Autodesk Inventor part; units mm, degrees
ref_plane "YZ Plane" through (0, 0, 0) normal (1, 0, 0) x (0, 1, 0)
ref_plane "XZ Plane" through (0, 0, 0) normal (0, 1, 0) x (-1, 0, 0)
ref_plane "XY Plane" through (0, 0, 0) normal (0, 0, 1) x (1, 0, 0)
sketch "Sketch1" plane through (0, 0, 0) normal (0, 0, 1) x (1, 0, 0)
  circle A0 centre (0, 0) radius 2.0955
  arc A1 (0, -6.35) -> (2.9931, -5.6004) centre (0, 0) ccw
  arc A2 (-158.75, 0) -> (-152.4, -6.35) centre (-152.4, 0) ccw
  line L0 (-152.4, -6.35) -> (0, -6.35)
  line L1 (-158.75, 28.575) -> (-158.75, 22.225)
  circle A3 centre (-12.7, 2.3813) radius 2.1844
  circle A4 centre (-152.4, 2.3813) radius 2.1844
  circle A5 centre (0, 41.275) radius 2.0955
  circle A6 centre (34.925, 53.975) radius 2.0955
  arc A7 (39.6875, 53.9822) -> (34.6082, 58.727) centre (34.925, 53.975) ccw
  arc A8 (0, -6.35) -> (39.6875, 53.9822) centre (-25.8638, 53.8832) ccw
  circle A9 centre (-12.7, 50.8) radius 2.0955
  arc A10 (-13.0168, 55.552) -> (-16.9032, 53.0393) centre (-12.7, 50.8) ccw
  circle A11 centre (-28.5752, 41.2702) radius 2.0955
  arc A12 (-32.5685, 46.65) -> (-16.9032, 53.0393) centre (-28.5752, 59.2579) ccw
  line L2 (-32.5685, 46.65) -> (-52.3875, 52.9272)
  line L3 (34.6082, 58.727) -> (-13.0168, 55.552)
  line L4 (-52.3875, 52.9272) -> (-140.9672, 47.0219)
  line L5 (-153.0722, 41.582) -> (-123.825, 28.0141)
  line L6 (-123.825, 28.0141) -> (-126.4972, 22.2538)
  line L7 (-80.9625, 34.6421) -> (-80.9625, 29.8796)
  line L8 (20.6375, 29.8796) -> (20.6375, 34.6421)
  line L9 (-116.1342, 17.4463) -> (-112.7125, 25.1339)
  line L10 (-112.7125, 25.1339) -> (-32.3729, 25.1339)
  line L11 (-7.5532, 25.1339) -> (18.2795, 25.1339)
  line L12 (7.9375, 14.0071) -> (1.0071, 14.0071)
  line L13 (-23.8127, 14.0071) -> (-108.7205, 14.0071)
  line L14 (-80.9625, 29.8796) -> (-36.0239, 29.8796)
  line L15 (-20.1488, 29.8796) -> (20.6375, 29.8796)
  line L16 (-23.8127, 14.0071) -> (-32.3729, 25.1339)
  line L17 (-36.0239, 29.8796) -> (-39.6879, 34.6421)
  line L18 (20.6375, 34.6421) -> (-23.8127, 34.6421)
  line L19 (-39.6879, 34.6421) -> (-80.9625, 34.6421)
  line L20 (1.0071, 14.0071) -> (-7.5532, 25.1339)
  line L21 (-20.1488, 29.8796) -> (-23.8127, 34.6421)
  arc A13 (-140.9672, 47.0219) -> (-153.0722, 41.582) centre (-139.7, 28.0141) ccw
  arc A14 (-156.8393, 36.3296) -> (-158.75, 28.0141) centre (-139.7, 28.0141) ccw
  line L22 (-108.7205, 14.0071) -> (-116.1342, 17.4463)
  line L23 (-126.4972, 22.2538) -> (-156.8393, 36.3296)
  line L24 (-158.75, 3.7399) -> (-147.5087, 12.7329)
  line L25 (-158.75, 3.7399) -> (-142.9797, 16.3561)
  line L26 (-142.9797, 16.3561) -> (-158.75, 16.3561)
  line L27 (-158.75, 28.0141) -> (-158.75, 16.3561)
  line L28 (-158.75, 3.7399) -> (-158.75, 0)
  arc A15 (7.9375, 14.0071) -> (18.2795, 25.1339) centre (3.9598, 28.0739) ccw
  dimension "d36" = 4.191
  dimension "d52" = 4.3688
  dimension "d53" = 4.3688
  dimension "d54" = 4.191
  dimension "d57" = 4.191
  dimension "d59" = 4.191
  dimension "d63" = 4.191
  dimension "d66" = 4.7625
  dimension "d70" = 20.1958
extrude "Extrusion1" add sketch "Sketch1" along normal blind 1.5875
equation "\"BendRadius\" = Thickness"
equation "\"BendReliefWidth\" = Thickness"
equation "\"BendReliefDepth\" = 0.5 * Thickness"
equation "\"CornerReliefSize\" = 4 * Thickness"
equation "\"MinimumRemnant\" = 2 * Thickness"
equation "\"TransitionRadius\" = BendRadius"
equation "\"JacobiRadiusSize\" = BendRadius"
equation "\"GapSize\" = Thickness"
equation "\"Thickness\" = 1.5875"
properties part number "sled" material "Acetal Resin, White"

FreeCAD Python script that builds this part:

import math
import FreeCAD as App
import Part
import Sketcher

V = App.Vector
Q = App.Units.Quantity

doc = App.newDocument("Part")
params = doc.addObject("Spreadsheet::Sheet", "Params")
for row, (alias, value) in enumerate([
    ("sketch1_diameter", "0.172 in"),
    ("sketch1_diameter2", "0.165 in"),
    ("sketch1_radius", "0.1875 in"),
    ("sketch1_width", "6 in"),
    ("sketch1_height", "0.1875 in"),
    ("pad1_length", "0.0625 in"),
], start=1):
    params.set(f"A{row}", alias)
    params.set(f"B{row}", "=" + value)
    params.setAlias(f"B{row}", alias)

body = doc.addObject("PartDesign::Body", "Body")

# Sketch on XY plane
sketch1 = body.newObject("Sketcher::SketchObject", "Sketch")
sketch1.AttachmentSupport = (doc.getObject("XY_Plane"), [""])
sketch1.MapMode = "FlatFace"
sketch1.addGeometry([
    Part.LineSegment(V(-158.8, 3.7, 0), V(-158.8, 0, 0)),  # 0
    Part.ArcOfCircle(Part.Circle(V(-152.4, 0, 0), V(0, 0, 1), 6.3), math.radians(180), math.radians(270)),  # 1
    Part.LineSegment(V(-152.4, -6.3, 0), V(0, -6.3, 0)),  # 2
    Part.ArcOfCircle(Part.Circle(V(-25.9, 53.9, 0), V(0, 0, 1), 65.6), math.radians(-67), math.radians(0)),  # 3
    Part.ArcOfCircle(Part.Circle(V(34.9, 54, 0), V(0, 0, 1), 4.8), math.radians(0), math.radians(94)),  # 4
    Part.LineSegment(V(34.6, 58.7, 0), V(-13, 55.6, 0)),  # 5
    Part.ArcOfCircle(Part.Circle(V(-12.7, 50.8, 0), V(0, 0, 1), 4.8), math.radians(94), math.radians(152)),  # 6
    Part.ArcOfCircle(Part.Circle(V(-28.6, 59.3, 0), V(0, 0, 1), 13.2), math.radians(-108), math.radians(-28)),  # 7
    Part.LineSegment(V(-32.6, 46.6, 0), V(-52.4, 52.9, 0)),  # 8
    Part.LineSegment(V(-52.4, 52.9, 0), V(-141, 47, 0)),  # 9
    Part.ArcOfCircle(Part.Circle(V(-139.7, 28, 0), V(0, 0, 1), 19.1), math.radians(94), math.radians(135)),  # 10
    Part.LineSegment(V(-153.1, 41.6, 0), V(-123.8, 28, 0)),  # 11
    Part.LineSegment(V(-123.8, 28, 0), V(-126.5, 22.3, 0)),  # 12
    Part.LineSegment(V(-126.5, 22.3, 0), V(-156.8, 36.3, 0)),  # 13
    Part.ArcOfCircle(Part.Circle(V(-139.7, 28, 0), V(0, 0, 1), 19), math.radians(154), math.radians(180)),  # 14
    Part.LineSegment(V(-158.8, 28, 0), V(-158.8, 16.4, 0)),  # 15
    Part.LineSegment(V(-158.8, 16.4, 0), V(-143, 16.4, 0)),  # 16
    Part.LineSegment(V(-143, 16.4, 0), V(-147.5, 12.7, 0)),  # 17
    Part.LineSegment(V(-147.5, 12.7, 0), V(-158.8, 3.7, 0)),  # 18
    Part.Circle(V(-152.4, 2.4, 0), V(0, 0, 1), 2.2),  # 19
    Part.LineSegment(V(-108.7, 14, 0), V(-116.1, 17.4, 0)),  # 20
    Part.LineSegment(V(-116.1, 17.4, 0), V(-112.7, 25.1, 0)),  # 21
    Part.LineSegment(V(-112.7, 25.1, 0), V(-32.4, 25.1, 0)),  # 22
    Part.LineSegment(V(-32.4, 25.1, 0), V(-23.8, 14, 0)),  # 23
    Part.LineSegment(V(-23.8, 14, 0), V(-108.7, 14, 0)),  # 24
    Part.Circle(V(-12.7, 2.4, 0), V(0, 0, 1), 2.2),  # 25
    Part.Circle(V(0, 0, 0), V(0, 0, 1), 2.1),  # 26
    Part.LineSegment(V(1, 14, 0), V(-7.6, 25.1, 0)),  # 27
    Part.LineSegment(V(-7.6, 25.1, 0), V(18.3, 25.1, 0)),  # 28
    Part.ArcOfCircle(Part.Circle(V(4, 28.1, 0), V(0, 0, 1), 14.6), math.radians(-74), math.radians(-12)),  # 29
    Part.LineSegment(V(7.9, 14, 0), V(1, 14, 0)),  # 30
    Part.LineSegment(V(-81, 29.9, 0), V(-81, 34.6, 0)),  # 31
    Part.LineSegment(V(-81, 34.6, 0), V(-39.7, 34.6, 0)),  # 32
    Part.LineSegment(V(-39.7, 34.6, 0), V(-36, 29.9, 0)),  # 33
    Part.LineSegment(V(-36, 29.9, 0), V(-81, 29.9, 0)),  # 34
    Part.Circle(V(-28.6, 41.3, 0), V(0, 0, 1), 2.1),  # 35
    Part.LineSegment(V(20.6, 34.6, 0), V(20.6, 29.9, 0)),  # 36
    Part.LineSegment(V(20.6, 29.9, 0), V(-20.1, 29.9, 0)),  # 37
    Part.LineSegment(V(-20.1, 29.9, 0), V(-23.8, 34.6, 0)),  # 38
    Part.LineSegment(V(-23.8, 34.6, 0), V(20.6, 34.6, 0)),  # 39
    Part.Circle(V(0, 41.3, 0), V(0, 0, 1), 2.1),  # 40
    Part.Circle(V(-12.7, 50.8, 0), V(0, 0, 1), 2.1),  # 41
    Part.Circle(V(34.9, 54, 0), V(0, 0, 1), 2.1),  # 42
], False)
sketch1.addConstraint([
    Sketcher.Constraint("Tangent", 0, 2, 1, 1),
    Sketcher.Constraint("Tangent", 1, 2, 2, 1),
    Sketcher.Constraint("Coincident", 2, 2, 3, 1),
    Sketcher.Constraint("Tangent", 3, 2, 4, 1),
    Sketcher.Constraint("Tangent", 4, 2, 5, 1),
    Sketcher.Constraint("Tangent", 5, 2, 6, 1),
    Sketcher.Constraint("Tangent", 6, 2, 7, 2),
    Sketcher.Constraint("Tangent", 7, 1, 8, 1),
    Sketcher.Constraint("Coincident", 8, 2, 9, 1),
    Sketcher.Constraint("Tangent", 9, 2, 10, 1),
    Sketcher.Constraint("Coincident", 10, 2, 11, 1),
    Sketcher.Constraint("Coincident", 11, 2, 12, 1),
    Sketcher.Constraint("Coincident", 12, 2, 13, 1),
    Sketcher.Constraint("Coincident", 13, 2, 14, 1),
    Sketcher.Constraint("Tangent", 14, 2, 15, 1),
    Sketcher.Constraint("Coincident", 15, 2, 16, 1),
    Sketcher.Constraint("Coincident", 16, 2, 17, 1),
    Sketcher.Constraint("Coincident", 17, 2, 18, 1),
    Sketcher.Constraint("Coincident", 18, 2, 0, 1),
    Sketcher.Constraint("Coincident", 20, 2, 21, 1),
    Sketcher.Constraint("Coincident", 21, 2, 22, 1),
    Sketcher.Constraint("Coincident", 22, 2, 23, 1),
    Sketcher.Constraint("Coincident", 23, 2, 24, 1),
    Sketcher.Constraint("Coincident", 24, 2, 20, 1),
    Sketcher.Constraint("Coincident", 27, 2, 28, 1),
    Sketcher.Constraint("Coincident", 28, 2, 29, 2),
    Sketcher.Constraint("Coincident", 29, 1, 30, 1),
    Sketcher.Constraint("Coincident", 30, 2, 27, 1),
    Sketcher.Constraint("Coincident", 31, 2, 32, 1),
    Sketcher.Constraint("Coincident", 32, 2, 33, 1),
    Sketcher.Constraint("Coincident", 33, 2, 34, 1),
    Sketcher.Constraint("Coincident", 34, 2, 31, 1),
    Sketcher.Constraint("Coincident", 36, 2, 37, 1),
    Sketcher.Constraint("Coincident", 37, 2, 38, 1),
    Sketcher.Constraint("Coincident", 38, 2, 39, 1),
    Sketcher.Constraint("Coincident", 39, 2, 36, 1),
    Sketcher.Constraint("Vertical", 0),
    Sketcher.Constraint("Horizontal", 2),
    Sketcher.Constraint("Vertical", 15),
    Sketcher.Constraint("Horizontal", 16),
    Sketcher.Constraint("Horizontal", 22),
    Sketcher.Constraint("Horizontal", 24),
    Sketcher.Constraint("Horizontal", 28),
    Sketcher.Constraint("Horizontal", 30),
    Sketcher.Constraint("Vertical", 31),
    Sketcher.Constraint("Horizontal", 32),
    Sketcher.Constraint("Horizontal", 34),
    Sketcher.Constraint("Vertical", 36),
    Sketcher.Constraint("Horizontal", 37),
    Sketcher.Constraint("Horizontal", 39),
    Sketcher.Constraint("Coincident", 26, 3, -1, 1),
    Sketcher.Constraint("Coincident", 14, 3, 10, 3),
    Sketcher.Constraint("Coincident", 41, 3, 6, 3),
    Sketcher.Constraint("Coincident", 42, 3, 4, 3),
    Sketcher.Constraint("Equal", 4, 6),
    Sketcher.Constraint("Equal", 10, 14),
    Sketcher.Constraint("Equal", 19, 25),
    Sketcher.Constraint("Equal", 26, 35),
    Sketcher.Constraint("Equal", 35, 40),
    Sketcher.Constraint("Equal", 40, 41),
    Sketcher.Constraint("Equal", 41, 42),
    Sketcher.Constraint("PointOnObject", 1, 3, -1),
    Sketcher.Constraint("PointOnObject", 40, 3, -2),
    Sketcher.Constraint("PointOnObject", 2, 2, -2),
    Sketcher.Constraint("Parallel", 5, 9),
    Sketcher.Constraint("Perpendicular", 11, 12),
    Sketcher.Constraint("Perpendicular", 12, 13),
    Sketcher.Constraint("Parallel", 17, 18),
    Sketcher.Constraint("Parallel", 13, 20),
    Sketcher.Constraint("Parallel", 23, 27),
    Sketcher.Constraint("Parallel", 27, 33),
    Sketcher.Constraint("Parallel", 33, 38),
    Sketcher.Constraint("Horizontal", 19, 3, 25, 3),
    Sketcher.Constraint("Horizontal", 14, 3, 11, 2),
    Sketcher.Constraint("Horizontal", 22, 2, 27, 2),
    Sketcher.Constraint("Horizontal", 24, 2, 29, 1),
    Sketcher.Constraint("Horizontal", 34, 2, 36, 2),
    Sketcher.Constraint("Horizontal", 32, 2, 38, 2),
    Sketcher.Constraint("Vertical", 1, 3, 19, 3),
    Sketcher.Constraint("Vertical", 6, 3, 25, 3),
    Sketcher.Constraint("Vertical", 7, 3, 35, 3),
    Sketcher.Constraint("Vertical", 0, 2, 14, 2),
    Sketcher.Constraint("Vertical", 23, 2, 38, 2),
    Sketcher.Constraint("Diameter", 19, Q("0.172 in")),
    Sketcher.Constraint("Diameter", 26, Q("0.165 in")),
    Sketcher.Constraint("Radius", 4, Q("0.1875 in")),
    Sketcher.Constraint("DistanceX", 2, 1, 2, 2, Q("6 in")),
    Sketcher.Constraint("DistanceY", 31, 1, 31, 2, Q("0.1875 in")),
    Sketcher.Constraint("Radius", 1, Q("0.25 in")),
    Sketcher.Constraint("Radius", 10, Q("0.75 in")),
    Sketcher.Constraint("DistanceY", -1, 1, 6, 3, Q("2 in")),
    Sketcher.Constraint("DistanceX", 10, 3, 6, 3, Q("5 in")),
    Sketcher.Constraint("DistanceX", 35, 3, 23, 2, Q("0.1875 in")),
    Sketcher.Constraint("DistanceX", 39, 1, 39, 2, Q("1.75 in")),
    Sketcher.Constraint("DistanceX", 7, 3, 4, 3, Q("2.5 in")),
    Sketcher.Constraint("DistanceY", 40, 3, 42, 3, Q("0.5 in")),
    Sketcher.Constraint("DistanceX", 29, 1, 36, 2, Q("0.5 in")),
    Sketcher.Constraint("Distance", 12, Q("0.25 in")),
    Sketcher.Constraint("Angle", 17, Q("-141.3403 deg")),
    Sketcher.Constraint("Radius", 3, Q("65.5513 mm")),
    Sketcher.Constraint("Radius", 7, Q("13.2252 mm")),
    Sketcher.Constraint("Radius", 29, Q("14.6184 mm")),
    Sketcher.Constraint("DistanceY", 29, 3, 3, 2, Q("1.02 in")),
    Sketcher.Constraint("DistanceX", 21, 2, 31, 2, Q("1.25 in")),
    Sketcher.Constraint("DistanceX", -1, 1, 4, 3, Q("1.375 in")),
    Sketcher.Constraint("DistanceY", -1, 1, 4, 3, Q("2.125 in")),
    Sketcher.Constraint("DistanceY", -1, 1, 19, 3, Q("0.093752 in")),
    Sketcher.Constraint("DistanceX", 8, 2, -1, 1, Q("2.0625 in")),
    Sketcher.Constraint("DistanceX", 11, 2, -1, 1, Q("4.875 in")),
    Sketcher.Constraint("DistanceX", 21, 2, -1, 1, Q("4.4375 in")),
    Sketcher.Constraint("DistanceX", 12, 2, 20, 2, Q("0.408 in")),
    Sketcher.Constraint("DistanceY", 20, 2, 31, 2, Q("0.677 in")),
    Sketcher.Constraint("DistanceX", 32, 2, 22, 2, Q("0.288 in")),
    Sketcher.Constraint("DistanceX", 32, 2, 35, 3, Q("0.4375 in")),
    Sketcher.Constraint("Distance", 23, Q("0.5527 in")),
    Sketcher.Constraint("DistanceX", 16, 1, 16, 2, Q("15.7703 mm")),
    Sketcher.Constraint("DistanceX", 24, 2, 24, 1, Q("84.9078 mm")),
    Sketcher.Constraint("DistanceX", 28, 1, 28, 2, Q("25.8327 mm")),
    Sketcher.Constraint("DistanceX", 30, 2, 30, 1, Q("6.9304 mm")),
    Sketcher.Constraint("DistanceY", 0, 2, 0, 1, Q("3.74 mm")),
    Sketcher.Constraint("DistanceY", 15, 2, 15, 1, Q("11.658 mm")),
    Sketcher.Constraint("DistanceY", -1, 1, 35, 3, Q("1.6248 in")),
    Sketcher.Constraint("DistanceX", 12, 2, -1, 1, Q("4.9802 in")),
    Sketcher.Constraint("DistanceY", -1, 1, 17, 2, Q("0.5013 in")),
])
sketch1.setExpression("Constraints[83]", "Params.sketch1_diameter")
sketch1.setExpression("Constraints[84]", "Params.sketch1_diameter2")
sketch1.setExpression("Constraints[85]", "Params.sketch1_radius")
sketch1.setExpression("Constraints[86]", "Params.sketch1_width")
sketch1.setExpression("Constraints[87]", "Params.sketch1_height")
pad1 = body.newObject("PartDesign::Pad", "Pad")
pad1.Profile = sketch1
pad1.setExpression("Length", "Params.pad1_length")

doc.recompute()
